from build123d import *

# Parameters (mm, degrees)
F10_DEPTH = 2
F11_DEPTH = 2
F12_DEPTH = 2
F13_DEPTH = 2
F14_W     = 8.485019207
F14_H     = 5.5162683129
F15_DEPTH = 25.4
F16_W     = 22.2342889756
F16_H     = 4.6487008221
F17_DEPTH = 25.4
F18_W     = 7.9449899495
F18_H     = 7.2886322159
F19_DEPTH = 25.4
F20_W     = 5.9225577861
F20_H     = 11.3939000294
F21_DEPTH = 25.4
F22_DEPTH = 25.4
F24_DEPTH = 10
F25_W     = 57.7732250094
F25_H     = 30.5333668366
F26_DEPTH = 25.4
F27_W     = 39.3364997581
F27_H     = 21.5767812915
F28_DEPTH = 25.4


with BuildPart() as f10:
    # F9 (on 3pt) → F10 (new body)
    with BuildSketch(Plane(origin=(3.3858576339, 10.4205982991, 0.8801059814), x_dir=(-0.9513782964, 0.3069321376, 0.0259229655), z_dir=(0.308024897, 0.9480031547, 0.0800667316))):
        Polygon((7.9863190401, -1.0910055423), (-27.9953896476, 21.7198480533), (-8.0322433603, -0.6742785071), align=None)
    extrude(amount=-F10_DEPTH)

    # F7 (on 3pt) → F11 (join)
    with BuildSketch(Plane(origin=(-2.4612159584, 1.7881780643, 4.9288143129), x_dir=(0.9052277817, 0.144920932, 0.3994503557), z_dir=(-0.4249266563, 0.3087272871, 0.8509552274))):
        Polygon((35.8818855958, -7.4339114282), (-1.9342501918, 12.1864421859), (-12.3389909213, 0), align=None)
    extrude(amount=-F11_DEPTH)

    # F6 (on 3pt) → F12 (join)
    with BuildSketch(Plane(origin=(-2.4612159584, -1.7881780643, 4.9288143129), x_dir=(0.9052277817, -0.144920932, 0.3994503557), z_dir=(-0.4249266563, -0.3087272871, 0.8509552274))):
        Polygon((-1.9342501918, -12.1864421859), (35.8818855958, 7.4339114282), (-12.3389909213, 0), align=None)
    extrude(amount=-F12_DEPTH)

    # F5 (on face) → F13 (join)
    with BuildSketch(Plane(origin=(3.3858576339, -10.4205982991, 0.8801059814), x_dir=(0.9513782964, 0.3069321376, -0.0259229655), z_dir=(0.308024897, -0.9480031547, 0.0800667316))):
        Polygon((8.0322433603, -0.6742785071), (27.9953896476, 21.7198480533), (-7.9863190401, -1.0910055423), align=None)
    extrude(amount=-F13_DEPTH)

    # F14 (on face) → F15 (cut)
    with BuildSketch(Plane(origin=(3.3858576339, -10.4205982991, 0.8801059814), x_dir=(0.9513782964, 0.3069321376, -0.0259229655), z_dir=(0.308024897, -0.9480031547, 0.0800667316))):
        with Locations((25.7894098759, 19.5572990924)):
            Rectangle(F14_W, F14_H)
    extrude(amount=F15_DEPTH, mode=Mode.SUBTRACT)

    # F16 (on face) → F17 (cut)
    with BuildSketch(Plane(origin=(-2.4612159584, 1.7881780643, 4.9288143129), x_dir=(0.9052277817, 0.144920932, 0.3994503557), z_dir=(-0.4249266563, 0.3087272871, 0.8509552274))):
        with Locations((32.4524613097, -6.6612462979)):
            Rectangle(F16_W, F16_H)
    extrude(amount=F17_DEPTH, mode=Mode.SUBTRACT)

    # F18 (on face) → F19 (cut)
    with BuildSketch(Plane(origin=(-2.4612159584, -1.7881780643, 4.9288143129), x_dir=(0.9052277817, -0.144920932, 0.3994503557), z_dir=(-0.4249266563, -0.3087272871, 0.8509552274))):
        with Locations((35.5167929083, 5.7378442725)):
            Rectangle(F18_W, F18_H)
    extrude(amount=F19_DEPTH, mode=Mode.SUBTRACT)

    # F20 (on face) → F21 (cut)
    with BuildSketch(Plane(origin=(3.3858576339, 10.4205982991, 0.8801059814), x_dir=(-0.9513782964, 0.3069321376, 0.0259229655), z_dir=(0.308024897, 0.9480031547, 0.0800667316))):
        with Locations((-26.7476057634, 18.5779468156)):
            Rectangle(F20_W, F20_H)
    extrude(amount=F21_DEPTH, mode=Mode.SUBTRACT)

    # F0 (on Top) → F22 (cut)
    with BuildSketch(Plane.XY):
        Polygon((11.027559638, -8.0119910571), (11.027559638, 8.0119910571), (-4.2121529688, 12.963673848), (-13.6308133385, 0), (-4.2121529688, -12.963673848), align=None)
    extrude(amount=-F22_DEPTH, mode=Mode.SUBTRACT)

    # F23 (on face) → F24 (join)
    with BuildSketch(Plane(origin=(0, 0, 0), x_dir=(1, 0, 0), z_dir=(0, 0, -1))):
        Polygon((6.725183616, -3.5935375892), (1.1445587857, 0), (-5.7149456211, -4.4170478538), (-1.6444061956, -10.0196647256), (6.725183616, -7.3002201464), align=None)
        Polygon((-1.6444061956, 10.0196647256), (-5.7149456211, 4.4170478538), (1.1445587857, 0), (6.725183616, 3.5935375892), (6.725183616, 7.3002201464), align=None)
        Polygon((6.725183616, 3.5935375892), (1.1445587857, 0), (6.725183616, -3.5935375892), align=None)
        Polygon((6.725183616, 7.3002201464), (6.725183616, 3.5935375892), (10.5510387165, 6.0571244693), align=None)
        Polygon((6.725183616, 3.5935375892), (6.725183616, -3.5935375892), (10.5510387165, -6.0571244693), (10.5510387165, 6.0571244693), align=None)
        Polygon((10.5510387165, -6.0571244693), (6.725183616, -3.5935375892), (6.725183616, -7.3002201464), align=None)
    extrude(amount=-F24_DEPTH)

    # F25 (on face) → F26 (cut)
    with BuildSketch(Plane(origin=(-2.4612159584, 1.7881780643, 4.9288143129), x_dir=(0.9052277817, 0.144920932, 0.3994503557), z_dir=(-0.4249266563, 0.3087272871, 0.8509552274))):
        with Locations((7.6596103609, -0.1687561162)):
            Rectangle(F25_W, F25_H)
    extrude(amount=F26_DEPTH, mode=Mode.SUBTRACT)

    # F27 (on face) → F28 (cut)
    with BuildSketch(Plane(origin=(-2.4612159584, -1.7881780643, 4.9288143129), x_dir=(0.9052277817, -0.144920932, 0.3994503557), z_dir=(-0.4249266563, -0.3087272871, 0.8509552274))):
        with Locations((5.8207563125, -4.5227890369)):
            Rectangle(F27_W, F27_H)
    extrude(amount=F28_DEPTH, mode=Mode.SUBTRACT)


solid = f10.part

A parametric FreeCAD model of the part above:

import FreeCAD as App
import Part
import Sketcher
from FreeCAD import Vector
Q = App.Units.Quantity

doc = App.newDocument("Part")
body = doc.addObject("PartDesign::Body", "Body")

sketch1 = body.newObject("Sketcher::SketchObject", "Sketch")
sketch1.Placement = App.Placement(Vector(3.385858, 10.420598, 0.880106), App.Rotation(Vector(-0.951378296, 0.306932138, 0.025922965), Vector(-0.000000001, -0.08415867, 0.996452366), Vector(0.308024897, 0.948003155, 0.080066732), "ZXY"))
sketch1.addGeometry([
    Part.LineSegment(Vector(8, -1, 0), Vector(-28, 22, 0)),
    Part.LineSegment(Vector(-28, 22, 0), Vector(-8, -1, 0)),
    Part.LineSegment(Vector(-8, -1, 0), Vector(8, -1, 0)),
], False)
sketch1.addConstraint([
    Sketcher.Constraint("Coincident", 0, 2, 1, 1),
    Sketcher.Constraint("Coincident", 1, 2, 2, 1),
    Sketcher.Constraint("Coincident", 2, 2, 0, 1),
    Sketcher.Constraint("Distance", 1, Q("30.000402 mm")),
    Sketcher.Constraint("DistanceX", 0, 2, -1, 1, Q("27.99539 mm")),
    Sketcher.Constraint("DistanceY", -1, 1, 0, 2, Q("21.719848 mm")),
    Sketcher.Constraint("DistanceY", 1, 2, -1, 1, Q("0.674279 mm")),
    Sketcher.Constraint("DistanceX", -1, 1, 2, 2, Q("7.986319 mm")),
    Sketcher.Constraint("Distance", 0, Q("42.603033 mm")),
])
pad1 = body.newObject("PartDesign::Pad", "Pad")
pad1.Profile = sketch1
pad1.Length = 2
pad1.Reversed = True

sketch2 = body.newObject("Sketcher::SketchObject", "Sketch001")
sketch2.Placement = App.Placement(Vector(-2.461216, 1.788178, 4.928814), App.Rotation(Vector(0.905227782, 0.144920932, 0.399450356), Vector(0, 0.940045417, -0.341049284), Vector(-0.424926656, 0.308727287, 0.850955227), "ZXY"))
sketch2.addGeometry([
    Part.LineSegment(Vector(36, -7, 0), Vector(-2, 12, 0)),
    Part.LineSegment(Vector(-2, 12, 0), Vector(-12, 0, 0)),
    Part.LineSegment(Vector(-12, 0, 0), Vector(36, -7, 0)),
], False)
sketch2.addConstraint([
    Sketcher.Constraint("Coincident", 0, 2, 1, 1),
    Sketcher.Constraint("Coincident", 1, 2, 2, 1),
    Sketcher.Constraint("Coincident", 2, 2, 0, 1),
    Sketcher.Constraint("PointOnObject", 1, 2, -1),
    Sketcher.Constraint("Distance", 2, Q("48.790532 mm")),
    Sketcher.Constraint("DistanceX", 0, 2, -1, 1, Q("1.93425 mm")),
    Sketcher.Constraint("DistanceX", 1, 2, -1, 1, Q("12.338991 mm")),
    Sketcher.Constraint("DistanceY", 2, 2, -1, 1, Q("7.433911 mm")),
    Sketcher.Constraint("Distance", 0, Q("42.603033 mm")),
])
pad2 = body.newObject("PartDesign::Pad", "Pad001")
pad2.Profile = sketch2
pad2.Length = 2
pad2.Reversed = True

sketch3 = body.newObject("Sketcher::SketchObject", "Sketch002")
sketch3.Placement = App.Placement(Vector(-2.461216, -1.788178, 4.928814), App.Rotation(Vector(0.905227782, -0.144920932, 0.399450356), Vector(0, 0.940045417, 0.341049284), Vector(-0.424926656, -0.308727287, 0.850955227), "ZXY"))
sketch3.addGeometry([
    Part.LineSegment(Vector(-2, -12, 0), Vector(36, 7, 0)),
    Part.LineSegment(Vector(36, 7, 0), Vector(-12, 0, 0)),
    Part.LineSegment(Vector(-12, 0, 0), Vector(-2, -12, 0)),
], False)
sketch3.addConstraint([
    Sketcher.Constraint("Coincident", 0, 2, 1, 1),
    Sketcher.Constraint("Coincident", 1, 2, 2, 1),
    Sketcher.Constraint("Coincident", 2, 2, 0, 1),
    Sketcher.Constraint("PointOnObject", 1, 2, -1),
    Sketcher.Constraint("Distance", 1, Q("48.790532 mm")),
    Sketcher.Constraint("DistanceY", -1, 1, 0, 2, Q("7.433911 mm")),
    Sketcher.Constraint("DistanceX", 1, 2, -1, 1, Q("12.338991 mm")),
    Sketcher.Constraint("DistanceX", 2, 2, -1, 1, Q("1.93425 mm")),
    Sketcher.Constraint("Distance", 0, Q("42.603033 mm")),
])
pad3 = body.newObject("PartDesign::Pad", "Pad002")
pad3.Profile = sketch3
pad3.Length = 2
pad3.Reversed = True

sketch4 = body.newObject("Sketcher::SketchObject", "Sketch003")
sketch4.Placement = App.Placement(Vector(3.385858, -10.420598, 0.880106), App.Rotation(Vector(0.951378296, 0.306932138, -0.025922965), Vector(-0.000000001, 0.08415867, 0.996452366), Vector(0.308024897, -0.948003155, 0.080066732), "ZXY"))
sketch4.addGeometry([
    Part.LineSegment(Vector(8, -1, 0), Vector(28, 22, 0)),
    Part.LineSegment(Vector(28, 22, 0), Vector(-8, -1, 0)),
    Part.LineSegment(Vector(-8, -1, 0), Vector(8, -1, 0)),
], False)
sketch4.addConstraint([
    Sketcher.Constraint("Coincident", 0, 2, 1, 1),
    Sketcher.Constraint("Coincident", 1, 2, 2, 1),
    Sketcher.Constraint("Coincident", 2, 2, 0, 1),
    Sketcher.Constraint("Distance", 0, Q("30.000402 mm")),
    Sketcher.Constraint("DistanceX", -1, 1, 0, 2, Q("27.99539 mm")),
    Sketcher.Constraint("DistanceY", -1, 1, 0, 2, Q("21.719848 mm")),
    Sketcher.Constraint("DistanceX", 1, 2, -1, 1, Q("7.986319 mm")),
    Sketcher.Constraint("DistanceY", 2, 2, -1, 1, Q("0.674279 mm")),
    Sketcher.Constraint("Distance", 1, Q("42.603033 mm")),
])
pad4 = body.newObject("PartDesign::Pad", "Pad003")
pad4.Profile = sketch4
pad4.Length = 2
pad4.Reversed = True

sketch5 = body.newObject("Sketcher::SketchObject", "Sketch004")
sketch5.Placement = App.Placement(Vector(3.385858, -10.420598, 0.880106), App.Rotation(Vector(0.951378296, 0.306932138, -0.025922965), Vector(-0.000000001, 0.08415867, 0.996452366), Vector(0.308024897, -0.948003155, 0.080066732), "ZXY"))
sketch5.addGeometry([
    Part.LineSegment(Vector(22, 22, 0), Vector(22, 17, 0)),
    Part.LineSegment(Vector(22, 17, 0), Vector(30, 17, 0)),
    Part.LineSegment(Vector(30, 17, 0), Vector(30, 22, 0)),
    Part.LineSegment(Vector(30, 22, 0), Vector(22, 22, 0)),
], False)
sketch5.addConstraint([
    Sketcher.Constraint("Coincident", 0, 2, 1, 1),
    Sketcher.Constraint("Coincident", 1, 2, 2, 1),
    Sketcher.Constraint("Coincident", 2, 2, 3, 1),
    Sketcher.Constraint("Coincident", 3, 2, 0, 1),
    Sketcher.Constraint("Vertical", 0),
    Sketcher.Constraint("Horizontal", 1),
    Sketcher.Constraint("Vertical", 2),
    Sketcher.Constraint("Horizontal", 3),
    Sketcher.Constraint("DistanceX", 1, 1, 1, 2, Q("8.485019 mm")),
    Sketcher.Constraint("DistanceY", 0, 2, 0, 1, Q("5.516268 mm")),
    Sketcher.Constraint("DistanceX", -1, 1, 0, 2, Q("21.5469 mm")),
    Sketcher.Constraint("DistanceY", -1, 1, 0, 2, Q("16.799165 mm")),
])
pocket1 = body.newObject("PartDesign::Pocket", "Pocket")
pocket1.Profile = sketch5
pocket1.Length = 25.4
pocket1.Reversed = True

sketch6 = body.newObject("Sketcher::SketchObject", "Sketch005")
sketch6.Placement = App.Placement(Vector(-2.461216, 1.788178, 4.928814), App.Rotation(Vector(0.905227782, 0.144920932, 0.399450356), Vector(0, 0.940045417, -0.341049284), Vector(-0.424926656, 0.308727287, 0.850955227), "ZXY"))
sketch6.addGeometry([
    Part.LineSegment(Vector(21.3, -4.3, 0), Vector(21.3, -9, 0)),
    Part.LineSegment(Vector(21.3, -9, 0), Vector(43.6, -9, 0)),
    Part.LineSegment(Vector(43.6, -9, 0), Vector(43.6, -4.3, 0)),
    Part.LineSegment(Vector(43.6, -4.3, 0), Vector(21.3, -4.3, 0)),
], False)
sketch6.addConstraint([
    Sketcher.Constraint("Coincident", 0, 2, 1, 1),
    Sketcher.Constraint("Coincident", 1, 2, 2, 1),
    Sketcher.Constraint("Coincident", 2, 2, 3, 1),
    Sketcher.Constraint("Coincident", 3, 2, 0, 1),
    Sketcher.Constraint("Vertical", 0),
    Sketcher.Constraint("Horizontal", 1),
    Sketcher.Constraint("Vertical", 2),
    Sketcher.Constraint("Horizontal", 3),
    Sketcher.Constraint("DistanceY", 0, 2, 0, 1, Q("4.648701 mm")),
    Sketcher.Constraint("DistanceX", 1, 1, 1, 2, Q("22.234289 mm")),
    Sketcher.Constraint("DistanceX", -1, 1, 0, 2, Q("21.335317 mm")),
    Sketcher.Constraint("DistanceY", 0, 2, -1, 1, Q("8.985597 mm")),
])
pocket2 = body.newObject("PartDesign::Pocket", "Pocket001")
pocket2.Profile = sketch6
pocket2.Length = 25.4
pocket2.Reversed = True

sketch7 = body.newObject("Sketcher::SketchObject", "Sketch006")
sketch7.Placement = App.Placement(Vector(-2.461216, -1.788178, 4.928814), App.Rotation(Vector(0.905227782, -0.144920932, 0.399450356), Vector(0, 0.940045417, 0.341049284), Vector(-0.424926656, -0.308727287, 0.850955227), "ZXY"))
sketch7.addGeometry([
    Part.LineSegment(Vector(32, 9, 0), Vector(32, 2, 0)),
    Part.LineSegment(Vector(32, 2, 0), Vector(39, 2, 0)),
    Part.LineSegment(Vector(39, 2, 0), Vector(39, 9, 0)),
    Part.LineSegment(Vector(39, 9, 0), Vector(32, 9, 0)),
], False)
sketch7.addConstraint([
    Sketcher.Constraint("Coincident", 0, 2, 1, 1),
    Sketcher.Constraint("Coincident", 1, 2, 2, 1),
    Sketcher.Constraint("Coincident", 2, 2, 3, 1),
    Sketcher.Constraint("Coincident", 3, 2, 0, 1),
    Sketcher.Constraint("Vertical", 0),
    Sketcher.Constraint("Horizontal", 1),
    Sketcher.Constraint("Vertical", 2),
    Sketcher.Constraint("Horizontal", 3),
    Sketcher.Constraint("DistanceX", 1, 1, 1, 2, Q("7.94499 mm")),
    Sketcher.Constraint("DistanceY", 0, 2, 0, 1, Q("7.288632 mm")),
    Sketcher.Constraint("DistanceY", -1, 1, 0, 2, Q("2.093528 mm")),
    Sketcher.Constraint("DistanceX", -1, 1, 0, 2, Q("31.544298 mm")),
])
pocket3 = body.newObject("PartDesign::Pocket", "Pocket002")
pocket3.Profile = sketch7
pocket3.Length = 25.4
pocket3.Reversed = True

sketch8 = body.newObject("Sketcher::SketchObject", "Sketch007")
sketch8.Placement = App.Placement(Vector(3.385858, 10.420598, 0.880106), App.Rotation(Vector(-0.951378296, 0.306932138, 0.025922965), Vector(-0.000000001, -0.08415867, 0.996452366), Vector(0.308024897, 0.948003155, 0.080066732), "ZXY"))
sketch8.addGeometry([
    Part.LineSegment(Vector(-30, 24, 0), Vector(-30, 13, 0)),
    Part.LineSegment(Vector(-30, 13, 0), Vector(-24, 13, 0)),
    Part.LineSegment(Vector(-24, 13, 0), Vector(-24, 24, 0)),
    Part.LineSegment(Vector(-24, 24, 0), Vector(-30, 24, 0)),
], False)
sketch8.addConstraint([
    Sketcher.Constraint("Coincident", 0, 2, 1, 1),
    Sketcher.Constraint("Coincident", 1, 2, 2, 1),
    Sketcher.Constraint("Coincident", 2, 2, 3, 1),
    Sketcher.Constraint("Coincident", 3, 2, 0, 1),
    Sketcher.Constraint("Vertical", 0),
    Sketcher.Constraint("Horizontal", 1),
    Sketcher.Constraint("Vertical", 2),
    Sketcher.Constraint("Horizontal", 3),
    Sketcher.Constraint("DistanceY", 0, 2, 0, 1, Q("11.3939 mm")),
    Sketcher.Constraint("DistanceX", 1, 1, 1, 2, Q("5.922558 mm")),
    Sketcher.Constraint("DistanceX", 0, 2, -1, 1, Q("29.708885 mm")),
    Sketcher.Constraint("DistanceY", -1, 1, 0, 2, Q("12.880997 mm")),
])
pocket4 = body.newObject("PartDesign::Pocket", "Pocket003")
pocket4.Profile = sketch8
pocket4.Length = 25.4
pocket4.Reversed = True

sketch9 = body.newObject("Sketcher::SketchObject", "Sketch008")
sketch9.AttachmentSupport = (doc.getObject("XY_Plane"), [""])
sketch9.MapMode = "FlatFace"
sketch9.addGeometry([
    Part.LineSegment(Vector(11, -8, 0), Vector(11, 8, 0)),
    Part.LineSegment(Vector(11, 8, 0), Vector(-4, 13, 0)),
    Part.LineSegment(Vector(-4, 13, 0), Vector(-14, 0, 0)),
    Part.LineSegment(Vector(-14, 0, 0), Vector(-4, -13, 0)),
    Part.LineSegment(Vector(-4, -13, 0), Vector(11, -8, 0)),
], False)
sketch9.addConstraint([
    Sketcher.Constraint("Coincident", 0, 2, 1, 1),
    Sketcher.Constraint("Coincident", 1, 2, 2, 1),
    Sketcher.Constraint("Coincident", 2, 2, 3, 1),
    Sketcher.Constraint("Coincident", 3, 2, 4, 1),
    Sketcher.Constraint("Coincident", 4, 2, 0, 1),
    Sketcher.Constraint("Vertical", 0),
    Sketcher.Constraint("Symmetric", 1, 2, 3, 2, -1),
    Sketcher.Constraint("PointOnObject", 2, 2, -1),
    Sketcher.Constraint("Equal", 1, 2),
    Sketcher.Constraint("Equal", 3, 4),
    Sketcher.Constraint("Angle", 1, Q("162 deg")),
    Sketcher.Constraint("Angle", 2, Q("-126 deg")),
    Sketcher.Constraint("DistanceY", 0, 1, 0, 2, Q("16.023982 mm")),
    Sketcher.Constraint("DistanceX", -1, 1, 0, 2, Q("11.02756 mm")),
])
pocket5 = body.newObject("PartDesign::Pocket", "Pocket004")
pocket5.Profile = sketch9
pocket5.Length = 25.4

sketch10 = body.newObject("Sketcher::SketchObject", "Sketch009")
sketch10.AttachmentSupport = (doc.getObject("XY_Plane"), [""])
sketch10.MapMode = "FlatFace"
sketch10.addGeometry([
    Part.LineSegment(Vector(1.1, 0, 0), Vector(-5.7, 4.4, 0)),
    Part.LineSegment(Vector(-5.7, 4.4, 0), Vector(-1.6, 10, 0)),
    Part.LineSegment(Vector(-1.6, 10, 0), Vector(6.7, 7.3, 0)),
    Part.LineSegment(Vector(6.7, 7.3, 0), Vector(10.6, 6.1, 0)),
    Part.LineSegment(Vector(10.6, 6.1, 0), Vector(10.6, -6.1, 0)),
    Part.LineSegment(Vector(10.6, -6.1, 0), Vector(6.7, -7.3, 0)),
    Part.LineSegment(Vector(6.7, -7.3, 0), Vector(-1.6, -10, 0)),
    Part.LineSegment(Vector(-1.6, -10, 0), Vector(-5.7, -4.4, 0)),
    Part.LineSegment(Vector(-5.7, -4.4, 0), Vector(1.1, 0, 0)),
], False)
sketch10.addConstraint([
    Sketcher.Constraint("Coincident", 0, 2, 1, 1),
    Sketcher.Constraint("Coincident", 1, 2, 2, 1),
    Sketcher.Constraint("Coincident", 2, 2, 3, 1),
    Sketcher.Constraint("Coincident", 3, 2, 4, 1),
    Sketcher.Constraint("Coincident", 4, 2, 5, 1),
    Sketcher.Constraint("Coincident", 5, 2, 6, 1),
    Sketcher.Constraint("Coincident", 6, 2, 7, 1),
    Sketcher.Constraint("Coincident", 7, 2, 8, 1),
    Sketcher.Constraint("Coincident", 8, 2, 0, 1),
    Sketcher.Constraint("Vertical", 4),
    Sketcher.Constraint("Symmetric", 2, 2, 5, 2, -1),
    Sketcher.Constraint("Symmetric", 1, 2, 6, 2, -1),
    Sketcher.Constraint("Symmetric", 0, 2, 7, 2, -1),
    Sketcher.Constraint("PointOnObject", 8, 2, -1),
    Sketcher.Constraint("Parallel", 2, 3),
    Sketcher.Constraint("Parallel", 5, 6),
    Sketcher.Constraint("Angle", 1, Q("54 deg")),
    Sketcher.Constraint("Angle", 2, Q("-18 deg")),
    Sketcher.Constraint("DistanceY", 4, 2, 4, 1, Q("12.114249 mm")),
    Sketcher.Constraint("Distance", 0, Q("8.158622 mm")),
    Sketcher.Constraint("DistanceY", -1, 1, 2, 2, Q("7.30022 mm")),
    Sketcher.Constraint("DistanceX", -1, 1, 3, 2, Q("10.551039 mm")),
    Sketcher.Constraint("DistanceX", -1, 1, 8, 2, Q("1.144559 mm")),
    Sketcher.Constraint("DistanceX", 0, 2, 1, 2, Q("4.070539 mm")),
])
pad5 = body.newObject("PartDesign::Pad", "Pad004")
pad5.Profile = sketch10
pad5.Length = 10

sketch11 = body.newObject("Sketcher::SketchObject", "Sketch010")
sketch11.Placement = App.Placement(Vector(-2.461216, 1.788178, 4.928814), App.Rotation(Vector(0.905227782, 0.144920932, 0.399450356), Vector(0, 0.940045417, -0.341049284), Vector(-0.424926656, 0.308727287, 0.850955227), "ZXY"))
sketch11.addGeometry([
    Part.LineSegment(Vector(-21, 15, 0), Vector(-21, -15, 0)),
    Part.LineSegment(Vector(-21, -15, 0), Vector(37, -15, 0)),
    Part.LineSegment(Vector(37, -15, 0), Vector(37, 15, 0)),
    Part.LineSegment(Vector(37, 15, 0), Vector(-21, 15, 0)),
], False)
sketch11.addConstraint([
    Sketcher.Constraint("Coincident", 0, 2, 1, 1),
    Sketcher.Constraint("Coincident", 1, 2, 2, 1),
    Sketcher.Constraint("Coincident", 2, 2, 3, 1),
    Sketcher.Constraint("Coincident", 3, 2, 0, 1),
    Sketcher.Constraint("Vertical", 0),
    Sketcher.Constraint("Horizontal", 1),
    Sketcher.Constraint("Vertical", 2),
    Sketcher.Constraint("Horizontal", 3),
    Sketcher.Constraint("DistanceX", 1, 1, 1, 2, Q("57.773225 mm")),
    Sketcher.Constraint("DistanceY", 0, 2, 0, 1, Q("30.533367 mm")),
    Sketcher.Constraint("DistanceY", 0, 2, -1, 1, Q("15.43544 mm")),
    Sketcher.Constraint("DistanceX", 0, 2, -1, 1, Q("21.227002 mm")),
])
pocket6 = body.newObject("PartDesign::Pocket", "Pocket005")
pocket6.Profile = sketch11
pocket6.Length = 25.4
pocket6.Reversed = True

sketch12 = body.newObject("Sketcher::SketchObject", "Sketch011")
sketch12.Placement = App.Placement(Vector(-2.461216, -1.788178, 4.928814), App.Rotation(Vector(0.905227782, -0.144920932, 0.399450356), Vector(0, 0.940045417, 0.341049284), Vector(-0.424926656, -0.308727287, 0.850955227), "ZXY"))
sketch12.addGeometry([
    Part.LineSegment(Vector(-14, 6, 0), Vector(-14, -15, 0)),
    Part.LineSegment(Vector(-14, -15, 0), Vector(25, -15, 0)),
    Part.LineSegment(Vector(25, -15, 0), Vector(25, 6, 0)),
    Part.LineSegment(Vector(25, 6, 0), Vector(-14, 6, 0)),
], False)
sketch12.addConstraint([
    Sketcher.Constraint("Coincident", 0, 2, 1, 1),
    Sketcher.Constraint("Coincident", 1, 2, 2, 1),
    Sketcher.Constraint("Coincident", 2, 2, 3, 1),
    Sketcher.Constraint("Coincident", 3, 2, 0, 1),
    Sketcher.Constraint("Vertical", 0),
    Sketcher.Constraint("Horizontal", 1),
    Sketcher.Constraint("Vertical", 2),
    Sketcher.Constraint("Horizontal", 3),
    Sketcher.Constraint("DistanceX", 1, 1, 1, 2, Q("39.3365 mm")),
    Sketcher.Constraint("DistanceY", 0, 2, 0, 1, Q("21.576781 mm")),
    Sketcher.Constraint("DistanceY", -1, 1, 2, 2, Q("6.265602 mm")),
    Sketcher.Constraint("DistanceX", 0, 2, -1, 1, Q("13.847494 mm")),
])
pocket7 = body.newObject("PartDesign::Pocket", "Pocket006")
pocket7.Profile = sketch12
pocket7.Length = 25.4
pocket7.Reversed = True

doc.recompute()
